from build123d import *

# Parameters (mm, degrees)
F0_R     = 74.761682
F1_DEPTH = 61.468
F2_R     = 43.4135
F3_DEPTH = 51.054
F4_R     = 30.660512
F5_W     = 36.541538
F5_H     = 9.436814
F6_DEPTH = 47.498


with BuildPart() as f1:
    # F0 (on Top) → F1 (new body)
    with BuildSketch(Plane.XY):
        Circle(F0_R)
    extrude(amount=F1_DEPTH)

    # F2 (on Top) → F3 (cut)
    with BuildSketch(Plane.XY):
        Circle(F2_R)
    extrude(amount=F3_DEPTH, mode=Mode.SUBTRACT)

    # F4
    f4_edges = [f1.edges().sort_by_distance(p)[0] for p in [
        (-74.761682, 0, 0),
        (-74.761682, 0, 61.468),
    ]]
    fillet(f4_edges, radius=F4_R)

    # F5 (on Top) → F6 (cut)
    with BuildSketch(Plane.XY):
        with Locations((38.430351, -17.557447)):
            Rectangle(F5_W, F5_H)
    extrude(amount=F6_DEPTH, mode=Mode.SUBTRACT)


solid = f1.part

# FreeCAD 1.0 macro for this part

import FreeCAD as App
import Part
import Sketcher

V = App.Vector
Q = App.Units.Quantity


def edges_at(feature, points):
    """Names of the edges that pass closest to the given points."""
    edges = feature.Shape.Edges
    near = lambda p: min(range(len(edges)), key=lambda i: edges[i].distToShape(Part.Vertex(*p))[0])
    return sorted({f"Edge{near(p) + 1}" for p in points})


def add_polygon(sketch, points):
    """Adds a closed chain of lines whose ends are joined by coincident constraints."""
    first, n = sketch.GeometryCount, len(points)
    for a, b in zip(points, points[1:] + points[:1]):
        sketch.addGeometry(Part.LineSegment(App.Vector(*a, 0), App.Vector(*b, 0)), False)
    for i in range(n):
        sketch.addConstraint(Sketcher.Constraint("Coincident", first + i, 2, first + (i + 1) % n, 1))

doc = App.newDocument("Part")
body = doc.addObject("PartDesign::Body", "Body")

sketch1 = body.newObject("Sketcher::SketchObject", "Sketch")
sketch1.AttachmentSupport = (doc.getObject("XY_Plane"), [""])
sketch1.MapMode = "FlatFace"
sketch1.addGeometry(Part.Circle(V(0, 0, 0), V(0, 0, 1), 75), False)
sketch1.addConstraint([
    Sketcher.Constraint("Coincident", 0, 3, -1, 1),
    Sketcher.Constraint("Diameter", 0, 149.523364),
])
pad1 = body.newObject("PartDesign::Pad", "Pad")
pad1.Profile = sketch1
pad1.Length = Q("2.42 in")

sketch2 = body.newObject("Sketcher::SketchObject", "Sketch001")
sketch2.AttachmentSupport = (doc.getObject("XY_Plane"), [""])
sketch2.MapMode = "FlatFace"
sketch2.addGeometry(Part.Circle(V(0, 0, 0), V(0, 0, 1), 43), False)
sketch2.addConstraint([
    Sketcher.Constraint("Coincident", 0, 3, -1, 1),
    Sketcher.Constraint("Diameter", 0, 86.827),
])
pocket1 = body.newObject("PartDesign::Pocket", "Pocket")
pocket1.Profile = sketch2
pocket1.Length = Q("2.01 in")
pocket1.Reversed = True
doc.recompute()

fillet = body.newObject("PartDesign::Fillet", "Fillet")
fillet.Base = (pocket1, edges_at(pocket1, [(-74.762, 0, 0), (-74.762, 0, 61.468)]))
fillet.Radius = 30.660512

sketch3 = body.newObject("Sketcher::SketchObject", "Sketch002")
sketch3.AttachmentSupport = (doc.getObject("XY_Plane"), [""])
sketch3.MapMode = "FlatFace"
add_polygon(sketch3, [(20, -13), (20, -22), (57, -22), (57, -13)])
sketch3.addConstraint([
    Sketcher.Constraint("Vertical", 0),
    Sketcher.Constraint("Horizontal", 1),
    Sketcher.Constraint("Vertical", 2),
    Sketcher.Constraint("Horizontal", 3),
    Sketcher.Constraint("DistanceX", 1, 1, 1, 2, 36.541538),
    Sketcher.Constraint("DistanceY", 0, 2, 0, 1, 9.436814),
    Sketcher.Constraint("DistanceX", -1, 1, 1, 2, 56.70112),
    Sketcher.Constraint("DistanceY", 2, 2, -1, 1, 12.83904),
])
pocket2 = body.newObject("PartDesign::Pocket", "Pocket001")
pocket2.Profile = sketch3
pocket2.Length = Q("1.87 in")
pocket2.Reversed = True

doc.recompute()
